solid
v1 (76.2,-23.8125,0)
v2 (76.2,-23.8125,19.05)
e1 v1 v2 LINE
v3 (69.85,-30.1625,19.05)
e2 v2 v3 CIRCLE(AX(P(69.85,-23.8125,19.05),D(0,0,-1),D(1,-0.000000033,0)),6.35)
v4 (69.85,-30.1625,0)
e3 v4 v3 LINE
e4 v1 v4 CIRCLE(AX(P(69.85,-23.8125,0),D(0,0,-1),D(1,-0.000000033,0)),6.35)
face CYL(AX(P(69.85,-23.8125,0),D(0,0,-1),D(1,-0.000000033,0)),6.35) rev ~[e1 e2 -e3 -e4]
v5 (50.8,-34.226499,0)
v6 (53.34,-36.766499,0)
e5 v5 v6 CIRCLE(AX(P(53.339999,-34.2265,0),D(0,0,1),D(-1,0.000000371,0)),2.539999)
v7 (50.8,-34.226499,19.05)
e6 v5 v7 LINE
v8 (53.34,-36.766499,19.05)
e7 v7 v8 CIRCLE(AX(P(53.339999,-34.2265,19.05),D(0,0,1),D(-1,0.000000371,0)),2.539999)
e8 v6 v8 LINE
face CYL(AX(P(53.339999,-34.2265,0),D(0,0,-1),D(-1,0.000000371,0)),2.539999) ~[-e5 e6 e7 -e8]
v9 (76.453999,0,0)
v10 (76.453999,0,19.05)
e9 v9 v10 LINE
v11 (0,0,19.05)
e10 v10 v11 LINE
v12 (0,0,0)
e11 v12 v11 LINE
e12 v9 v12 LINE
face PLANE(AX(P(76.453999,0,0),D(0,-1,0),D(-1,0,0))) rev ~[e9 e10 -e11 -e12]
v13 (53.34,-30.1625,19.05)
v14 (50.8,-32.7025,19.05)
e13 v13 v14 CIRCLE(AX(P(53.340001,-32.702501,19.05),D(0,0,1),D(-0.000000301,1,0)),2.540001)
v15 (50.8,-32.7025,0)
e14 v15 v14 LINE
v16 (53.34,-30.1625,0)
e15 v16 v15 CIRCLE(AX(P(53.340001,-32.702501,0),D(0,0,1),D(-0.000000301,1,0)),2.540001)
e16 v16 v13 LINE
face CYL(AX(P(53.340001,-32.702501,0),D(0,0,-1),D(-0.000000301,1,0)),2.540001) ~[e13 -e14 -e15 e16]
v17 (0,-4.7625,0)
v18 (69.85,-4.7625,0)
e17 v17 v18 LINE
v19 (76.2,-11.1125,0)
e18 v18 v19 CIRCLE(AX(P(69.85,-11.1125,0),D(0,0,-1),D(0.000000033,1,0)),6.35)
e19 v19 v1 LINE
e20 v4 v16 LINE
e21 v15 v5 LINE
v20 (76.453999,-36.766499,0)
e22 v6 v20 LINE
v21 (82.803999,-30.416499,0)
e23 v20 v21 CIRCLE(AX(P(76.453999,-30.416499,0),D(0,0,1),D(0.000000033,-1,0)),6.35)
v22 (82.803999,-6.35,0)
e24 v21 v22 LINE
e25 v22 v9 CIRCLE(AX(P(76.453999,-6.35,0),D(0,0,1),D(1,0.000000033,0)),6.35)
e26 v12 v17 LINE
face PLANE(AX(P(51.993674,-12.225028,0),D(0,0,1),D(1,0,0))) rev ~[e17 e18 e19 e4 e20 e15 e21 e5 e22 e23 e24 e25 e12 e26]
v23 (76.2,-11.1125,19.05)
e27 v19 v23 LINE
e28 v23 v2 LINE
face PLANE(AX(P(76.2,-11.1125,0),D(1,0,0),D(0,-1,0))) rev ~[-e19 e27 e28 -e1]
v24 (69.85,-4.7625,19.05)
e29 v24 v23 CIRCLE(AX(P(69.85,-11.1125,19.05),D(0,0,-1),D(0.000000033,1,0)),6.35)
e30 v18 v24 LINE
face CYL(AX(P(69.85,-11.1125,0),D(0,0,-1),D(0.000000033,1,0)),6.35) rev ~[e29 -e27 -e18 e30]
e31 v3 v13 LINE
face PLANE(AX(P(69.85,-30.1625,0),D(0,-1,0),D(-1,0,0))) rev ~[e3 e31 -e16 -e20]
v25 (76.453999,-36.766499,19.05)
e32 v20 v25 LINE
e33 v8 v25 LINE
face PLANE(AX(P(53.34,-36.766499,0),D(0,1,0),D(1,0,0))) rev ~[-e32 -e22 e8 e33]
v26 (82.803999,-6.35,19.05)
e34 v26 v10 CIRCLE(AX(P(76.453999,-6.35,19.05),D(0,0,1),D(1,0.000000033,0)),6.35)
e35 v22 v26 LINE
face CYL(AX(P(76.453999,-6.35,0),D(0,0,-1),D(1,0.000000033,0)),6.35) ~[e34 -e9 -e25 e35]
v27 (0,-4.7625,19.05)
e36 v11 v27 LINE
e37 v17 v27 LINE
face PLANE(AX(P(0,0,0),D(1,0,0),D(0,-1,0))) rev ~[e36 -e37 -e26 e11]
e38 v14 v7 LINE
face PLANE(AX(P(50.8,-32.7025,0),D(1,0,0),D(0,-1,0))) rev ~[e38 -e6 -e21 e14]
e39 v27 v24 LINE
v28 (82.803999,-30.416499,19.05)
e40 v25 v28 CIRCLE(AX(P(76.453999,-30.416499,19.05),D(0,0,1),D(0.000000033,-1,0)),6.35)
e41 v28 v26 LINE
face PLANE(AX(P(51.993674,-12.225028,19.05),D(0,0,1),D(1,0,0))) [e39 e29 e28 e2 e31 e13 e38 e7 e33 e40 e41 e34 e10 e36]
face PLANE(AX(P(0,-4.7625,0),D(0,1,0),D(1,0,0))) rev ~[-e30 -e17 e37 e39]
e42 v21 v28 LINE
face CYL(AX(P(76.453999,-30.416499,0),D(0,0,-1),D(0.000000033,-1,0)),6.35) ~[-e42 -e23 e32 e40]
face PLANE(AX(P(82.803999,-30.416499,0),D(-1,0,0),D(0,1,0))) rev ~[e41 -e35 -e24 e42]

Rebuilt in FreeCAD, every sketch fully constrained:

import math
import FreeCAD as App
import Part
import Sketcher
from FreeCAD import Vector
Q = App.Units.Quantity

doc = App.newDocument("Part")
params = doc.addObject("Spreadsheet::Sheet", "Params")
for row, (alias, value) in enumerate([
    ("sketch1_radius", "0.1 in"),
    ("sketch1_radius2", "0.25 in"),
    ("sketch1_height", "0.5 in"),
    ("sketch1_width", "3.01 in"),
    ("sketch1_height2", "0.06 in"),
    ("pad1_length", "0.75 in"),
], start=1):
    params.set(f"A{row}", alias)
    params.set(f"B{row}", "=" + value)
    params.setAlias(f"B{row}", alias)

body = doc.addObject("PartDesign::Body", "Body")

# Sketch on XY plane
sketch1 = body.newObject("Sketcher::SketchObject", "Sketch")
sketch1.AttachmentSupport = (doc.getObject("XY_Plane"), [""])
sketch1.MapMode = "FlatFace"
sketch1.addGeometry([
    Part.LineSegment(Vector(76.5, 0, 0), Vector(0, 0, 0)),  # 0
    Part.LineSegment(Vector(0, 0, 0), Vector(0, -4.8, 0)),  # 1
    Part.LineSegment(Vector(0, -4.8, 0), Vector(69.8, -4.8, 0)),  # 2
    Part.ArcOfCircle(Part.Circle(Vector(69.8, -11.1, 0), Vector(0, 0, 1), 6.4), math.radians(0), math.radians(90)),  # 3
    Part.LineSegment(Vector(76.2, -11.1, 0), Vector(76.2, -23.8, 0)),  # 4
    Part.ArcOfCircle(Part.Circle(Vector(69.8, -23.8, 0), Vector(0, 0, 1), 6.4), math.radians(-90), math.radians(0)),  # 5
    Part.LineSegment(Vector(69.8, -30.2, 0), Vector(53.3, -30.2, 0)),  # 6
    Part.ArcOfCircle(Part.Circle(Vector(53.3, -32.7, 0), Vector(0, 0, 1), 2.5), math.radians(90), math.radians(180)),  # 7
    Part.LineSegment(Vector(50.8, -32.7, 0), Vector(50.8, -34.2, 0)),  # 8
    Part.ArcOfCircle(Part.Circle(Vector(53.3, -34.2, 0), Vector(0, 0, 1), 2.5), math.radians(180), math.radians(270)),  # 9
    Part.LineSegment(Vector(53.3, -36.8, 0), Vector(76.5, -36.8, 0)),  # 10
    Part.ArcOfCircle(Part.Circle(Vector(76.5, -30.4, 0), Vector(0, 0, 1), 6.4), math.radians(-90), math.radians(0)),  # 11
    Part.LineSegment(Vector(82.8, -30.4, 0), Vector(82.8, -6.3, 0)),  # 12
    Part.ArcOfCircle(Part.Circle(Vector(76.5, -6.4, 0), Vector(0, 0, 1), 6.4), math.radians(0), math.radians(90)),  # 13
], False)
sketch1.addConstraint([
    Sketcher.Constraint("Coincident", 0, 2, 1, 1),
    Sketcher.Constraint("Coincident", 1, 2, 2, 1),
    Sketcher.Constraint("Tangent", 2, 2, 3, 2),
    Sketcher.Constraint("Tangent", 3, 1, 4, 1),
    Sketcher.Constraint("Tangent", 4, 2, 5, 2),
    Sketcher.Constraint("Tangent", 5, 1, 6, 1),
    Sketcher.Constraint("Tangent", 6, 2, 7, 1),
    Sketcher.Constraint("Tangent", 7, 2, 8, 1),
    Sketcher.Constraint("Tangent", 8, 2, 9, 1),
    Sketcher.Constraint("Tangent", 9, 2, 10, 1),
    Sketcher.Constraint("Tangent", 10, 2, 11, 1),
    Sketcher.Constraint("Tangent", 11, 2, 12, 1),
    Sketcher.Constraint("Tangent", 12, 2, 13, 1),
    Sketcher.Constraint("Tangent", 13, 2, 0, 1),
    Sketcher.Constraint("Horizontal", 0),
    Sketcher.Constraint("Vertical", 1),
    Sketcher.Constraint("Horizontal", 2),
    Sketcher.Constraint("Vertical", 4),
    Sketcher.Constraint("Horizontal", 6),
    Sketcher.Constraint("Vertical", 8),
    Sketcher.Constraint("Horizontal", 10),
    Sketcher.Constraint("Vertical", 12),
    Sketcher.Constraint("Coincident", 0, 2, -1, 1),
    Sketcher.Constraint("Equal", 3, 5),
    Sketcher.Constraint("Equal", 7, 9),
    Sketcher.Constraint("Equal", 5, 11),
    Sketcher.Constraint("Equal", 11, 13),
    Sketcher.Constraint("Radius", 7, Q("0.1 in")),
    Sketcher.Constraint("Radius", 3, Q("0.25 in")),
    Sketcher.Constraint("DistanceY", 4, 2, 4, 1, Q("0.5 in")),
    Sketcher.Constraint("DistanceX", -1, 1, 3, 1, Q("3 in")),
    Sketcher.Constraint("DistanceX", -1, 1, 7, 2, Q("2 in")),
    Sketcher.Constraint("DistanceX", 0, 2, 0, 1, Q("3.01 in")),
    Sketcher.Constraint("DistanceY", 8, 2, 8, 1, Q("0.06 in")),
    Sketcher.Constraint("DistanceY", 1, 2, 1, 1, Q("0.1875 in")),
])
sketch1.setExpression("Constraints[27]", "Params.sketch1_radius")
sketch1.setExpression("Constraints[28]", "Params.sketch1_radius2")
sketch1.setExpression("Constraints[29]", "Params.sketch1_height")
sketch1.setExpression("Constraints[32]", "Params.sketch1_width")
sketch1.setExpression("Constraints[33]", "Params.sketch1_height2")
pad1 = body.newObject("PartDesign::Pad", "Pad")
pad1.Profile = sketch1
pad1.setExpression("Length", "Params.pad1_length")

doc.recompute()
